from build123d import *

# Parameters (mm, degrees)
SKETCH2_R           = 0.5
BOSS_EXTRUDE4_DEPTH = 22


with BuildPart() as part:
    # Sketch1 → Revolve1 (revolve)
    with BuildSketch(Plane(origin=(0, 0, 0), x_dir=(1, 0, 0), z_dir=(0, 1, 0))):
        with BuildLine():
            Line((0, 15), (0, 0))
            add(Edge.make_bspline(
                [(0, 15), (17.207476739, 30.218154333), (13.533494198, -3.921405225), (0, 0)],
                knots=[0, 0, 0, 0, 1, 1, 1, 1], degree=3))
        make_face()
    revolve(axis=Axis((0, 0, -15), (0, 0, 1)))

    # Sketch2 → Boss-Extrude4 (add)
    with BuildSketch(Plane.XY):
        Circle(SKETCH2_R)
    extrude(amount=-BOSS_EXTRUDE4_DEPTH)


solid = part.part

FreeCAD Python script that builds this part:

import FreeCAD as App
import Part
import Sketcher
Q = App.Units.Quantity

doc = App.newDocument("Part")
params = doc.addObject("Spreadsheet::Sheet", "Params")
for row, (alias, value) in enumerate([
    ("revolution_angle", "360 deg"),
    ("sketch2_diameter", "1 mm"),
    ("pad1_length", "22 mm"),
], start=1):
    params.set(f"A{row}", alias)
    params.set(f"B{row}", "=" + value)
    params.setAlias(f"B{row}", alias)

body = doc.addObject("PartDesign::Body", "Body")

sketch1 = body.newObject("Sketcher::SketchObject", "Sketch")
sketch1.AttachmentSupport = (doc.getObject("XZ_Plane"), [""])
sketch1.MapMode = "FlatFace"
sketch1.addGeometry([
    Part.LineSegment(App.Vector(0, -15, 0), App.Vector(0, 0, 0)),
    Part.BSplineCurve([App.Vector(0, -15, 0), App.Vector(17.207477, -30.218154, 0), App.Vector(13.533494, 3.921405, 0), App.Vector(0, 0, 0)], [4, 4], [0, 1], False, 3, [1, 1, 1, 1], False),
], False)
sketch1.addConstraint([
    Sketcher.Constraint("Block", 1),
    Sketcher.Constraint("Coincident", 0, 1, 1, 1),
    Sketcher.Constraint("Coincident", 1, 2, 0, 2),
])
revolution = body.newObject("PartDesign::Revolution", "Revolution")
revolution.Profile = sketch1
revolution.ReferenceAxis = (sketch1, ["V_Axis"])
revolution.setExpression("Angle", "Params.revolution_angle")

sketch2 = body.newObject("Sketcher::SketchObject", "Sketch001")
sketch2.AttachmentSupport = (doc.getObject("XY_Plane"), [""])
sketch2.MapMode = "FlatFace"
sketch2.addGeometry(Part.Circle(App.Vector(0, 0, 0), App.Vector(0, 0, 1), 0.5), False)
sketch2.addConstraint([
    Sketcher.Constraint("Coincident", 0, 3, -1, 1),
    Sketcher.Constraint("Diameter", 0, Q("1 mm")),
])
sketch2.setExpression("Constraints[1]", "Params.sketch2_diameter")
pad1 = body.newObject("PartDesign::Pad", "Pad")
pad1.Profile = sketch2
pad1.setExpression("Length", "Params.pad1_length")
pad1.Reversed = True

doc.recompute()
